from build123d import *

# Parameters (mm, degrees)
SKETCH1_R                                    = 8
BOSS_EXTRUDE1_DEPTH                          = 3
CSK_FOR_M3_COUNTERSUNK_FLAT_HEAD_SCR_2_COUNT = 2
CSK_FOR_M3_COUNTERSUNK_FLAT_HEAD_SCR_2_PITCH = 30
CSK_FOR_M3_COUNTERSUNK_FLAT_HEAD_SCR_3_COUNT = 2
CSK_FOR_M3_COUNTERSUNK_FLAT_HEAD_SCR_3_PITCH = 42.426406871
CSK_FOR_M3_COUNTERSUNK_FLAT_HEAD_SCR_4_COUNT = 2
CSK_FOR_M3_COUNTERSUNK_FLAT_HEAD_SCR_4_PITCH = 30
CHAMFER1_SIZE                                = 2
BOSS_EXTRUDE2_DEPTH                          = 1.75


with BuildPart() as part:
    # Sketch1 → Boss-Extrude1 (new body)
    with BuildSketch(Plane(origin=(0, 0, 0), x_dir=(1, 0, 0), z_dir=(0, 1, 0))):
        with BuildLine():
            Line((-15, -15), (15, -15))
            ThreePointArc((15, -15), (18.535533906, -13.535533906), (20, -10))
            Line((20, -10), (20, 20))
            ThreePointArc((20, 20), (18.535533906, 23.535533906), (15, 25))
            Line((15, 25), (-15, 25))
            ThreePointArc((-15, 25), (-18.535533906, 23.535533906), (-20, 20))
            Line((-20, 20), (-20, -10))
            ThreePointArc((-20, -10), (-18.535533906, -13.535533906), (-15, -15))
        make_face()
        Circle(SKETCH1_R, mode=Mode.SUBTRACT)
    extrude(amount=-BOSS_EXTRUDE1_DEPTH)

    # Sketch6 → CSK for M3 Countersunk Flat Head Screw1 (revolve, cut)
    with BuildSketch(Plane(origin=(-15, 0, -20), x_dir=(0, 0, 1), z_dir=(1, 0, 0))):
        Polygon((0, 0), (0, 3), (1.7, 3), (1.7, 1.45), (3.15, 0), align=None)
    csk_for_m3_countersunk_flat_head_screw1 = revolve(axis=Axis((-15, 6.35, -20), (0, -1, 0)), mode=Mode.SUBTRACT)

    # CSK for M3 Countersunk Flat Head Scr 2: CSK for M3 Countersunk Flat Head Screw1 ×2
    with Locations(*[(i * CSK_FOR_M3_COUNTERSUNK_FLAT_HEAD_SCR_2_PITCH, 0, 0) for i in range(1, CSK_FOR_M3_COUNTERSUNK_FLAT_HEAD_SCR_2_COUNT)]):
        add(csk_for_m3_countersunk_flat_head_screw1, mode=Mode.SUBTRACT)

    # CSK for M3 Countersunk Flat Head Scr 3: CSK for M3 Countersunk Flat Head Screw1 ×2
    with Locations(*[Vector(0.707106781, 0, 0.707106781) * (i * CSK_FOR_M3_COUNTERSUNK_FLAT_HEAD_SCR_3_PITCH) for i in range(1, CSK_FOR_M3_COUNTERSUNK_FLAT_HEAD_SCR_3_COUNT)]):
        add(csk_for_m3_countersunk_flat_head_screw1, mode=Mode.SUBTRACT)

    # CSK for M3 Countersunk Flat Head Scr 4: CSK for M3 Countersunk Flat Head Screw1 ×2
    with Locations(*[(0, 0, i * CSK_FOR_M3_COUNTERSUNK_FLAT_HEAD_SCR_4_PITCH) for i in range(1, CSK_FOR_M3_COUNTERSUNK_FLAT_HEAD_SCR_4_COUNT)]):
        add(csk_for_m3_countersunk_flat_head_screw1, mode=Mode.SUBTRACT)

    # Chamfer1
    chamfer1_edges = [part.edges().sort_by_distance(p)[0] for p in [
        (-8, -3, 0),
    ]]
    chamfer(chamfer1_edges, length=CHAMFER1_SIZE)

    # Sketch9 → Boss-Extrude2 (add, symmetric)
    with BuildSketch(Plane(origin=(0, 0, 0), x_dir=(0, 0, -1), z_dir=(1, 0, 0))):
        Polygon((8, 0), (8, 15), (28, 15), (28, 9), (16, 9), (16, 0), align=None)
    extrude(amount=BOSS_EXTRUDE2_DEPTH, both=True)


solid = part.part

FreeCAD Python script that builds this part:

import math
import FreeCAD as App
import Part
import Sketcher
Q = App.Units.Quantity


def edges_at(feature, points):
    """Names of the edges that pass closest to the given points."""
    edges = feature.Shape.Edges
    near = lambda p: min(range(len(edges)), key=lambda i: edges[i].distToShape(Part.Vertex(*p))[0])
    return sorted({f"Edge{near(p) + 1}" for p in points})


def add_polygon(sketch, points):
    """Adds a closed chain of lines whose ends are joined by coincident constraints."""
    first, n = sketch.GeometryCount, len(points)
    for a, b in zip(points, points[1:] + points[:1]):
        sketch.addGeometry(Part.LineSegment(App.Vector(*a, 0), App.Vector(*b, 0)), False)
    for i in range(n):
        sketch.addConstraint(Sketcher.Constraint("Coincident", first + i, 2, first + (i + 1) % n, 1))

doc = App.newDocument("Part")
body = doc.addObject("PartDesign::Body", "Body")

sketch1 = body.newObject("Sketcher::SketchObject", "Sketch")
sketch1.AttachmentSupport = (doc.getObject("XZ_Plane"), [""])
sketch1.MapMode = "FlatFace"
sketch1.addGeometry([
    Part.LineSegment(App.Vector(-15, 15, 0), App.Vector(15, 15, 0)),
    Part.ArcOfCircle(Part.Circle(App.Vector(15, 10, 0), App.Vector(0, 0, 1), 5), math.radians(0), math.radians(90)),
    Part.LineSegment(App.Vector(20, 10, 0), App.Vector(20, -20, 0)),
    Part.ArcOfCircle(Part.Circle(App.Vector(15, -20, 0), App.Vector(0, 0, 1), 5), math.radians(-90), math.radians(0)),
    Part.LineSegment(App.Vector(15, -25, 0), App.Vector(-15, -25, 0)),
    Part.ArcOfCircle(Part.Circle(App.Vector(-15, -20, 0), App.Vector(0, 0, 1), 5), math.radians(180), math.radians(270)),
    Part.LineSegment(App.Vector(-20, -20, 0), App.Vector(-20, 10, 0)),
    Part.ArcOfCircle(Part.Circle(App.Vector(-15, 10, 0), App.Vector(0, 0, 1), 5), math.radians(90), math.radians(180)),
    Part.Circle(App.Vector(0, 0, 0), App.Vector(0, 0, 1), 8),
], False)
sketch1.addConstraint([
    Sketcher.Constraint("Tangent", 0, 2, 1, 2),
    Sketcher.Constraint("Tangent", 1, 1, 2, 1),
    Sketcher.Constraint("Tangent", 2, 2, 3, 2),
    Sketcher.Constraint("Tangent", 3, 1, 4, 1),
    Sketcher.Constraint("Tangent", 4, 2, 5, 2),
    Sketcher.Constraint("Tangent", 5, 1, 6, 1),
    Sketcher.Constraint("Tangent", 6, 2, 7, 2),
    Sketcher.Constraint("Tangent", 7, 1, 0, 1),
    Sketcher.Constraint("Horizontal", 0),
    Sketcher.Constraint("Vertical", 2),
    Sketcher.Constraint("Horizontal", 4),
    Sketcher.Constraint("Vertical", 6),
    Sketcher.Constraint("Coincident", 8, 3, -1, 1),
    Sketcher.Constraint("Equal", 1, 3),
    Sketcher.Constraint("Equal", 3, 5),
    Sketcher.Constraint("Equal", 5, 7),
    Sketcher.Constraint("Equal", 4, 2),
    Sketcher.Constraint("Diameter", 8, 16.0),
    Sketcher.Constraint("Radius", 1, 5.0),
    Sketcher.Constraint("DistanceX", 0, 1, 0, 2, 30.0),
    Sketcher.Constraint("DistanceX", -1, 1, 1, 3, 15.0),
    Sketcher.Constraint("DistanceY", -1, 1, 1, 3, 10.0),
])
pad1 = body.newObject("PartDesign::Pad", "Pad")
pad1.Profile = sketch1
pad1.Length = 3

sketch2 = body.newObject("Sketcher::SketchObject", "Sketch001")
sketch2.AttachmentSupport = (doc.getObject("YZ_Plane"), [""])
sketch2.MapMode = "FlatFace"
sketch2.AttachmentOffset = App.Placement(App.Vector(0, 0, -15), App.Rotation())
add_polygon(sketch2, [(-3, -20), (0, -20), (0, -16.9), (-1.4, -18.3), (-3, -18.3)])
sketch2.addGeometry(Part.LineSegment(App.Vector(0, -20, 0), App.Vector(-3, -20, 0)), True)
sketch2.addConstraint([
    Sketcher.Constraint("Horizontal", 0),
    Sketcher.Constraint("Vertical", 1),
    Sketcher.Constraint("Horizontal", 3),
    Sketcher.Constraint("Vertical", 4),
    Sketcher.Constraint("Horizontal", 5),
    Sketcher.Constraint("Coincident", 5, 1, 0, 2),
    Sketcher.Constraint("PointOnObject", 0, 2, -2),
    Sketcher.Constraint("Vertical", 3, 2, 5, 2),
    Sketcher.Constraint("DistanceX", 0, 1, 0, 2, 3.0),
    Sketcher.Constraint("Angle", 2, Q("-135 deg")),
    Sketcher.Constraint("DistanceY", 4, 2, 4, 1, 1.7),
    Sketcher.Constraint("DistanceY", 0, 2, -1, 1, 20.0),
    Sketcher.Constraint("DistanceX", 3, 2, 3, 1, 1.55),
])
groove = body.newObject("PartDesign::Groove", "Groove")
groove.Profile = sketch2
groove.ReferenceAxis = (sketch2, ["Axis0"])
groove.Angle = 360
doc.recompute()

linearpattern = body.newObject("PartDesign::LinearPattern", "LinearPattern")
linearpattern.Originals = [groove]
linearpattern.Direction = (doc.getObject("X_Axis"), [""])
linearpattern.Mode = "offset"
linearpattern.Offset = 30
linearpattern.Occurrences = 2
body.Tip = linearpattern
doc.recompute()

datumline = body.newObject("PartDesign::Line", "DatumLine")
datumline.Placement = App.Placement(App.Vector(0, 0, 0), App.Rotation(App.Vector(0, 0, 1), App.Vector(0.707106781, 0, 0.707106781)))
linearpattern2 = body.newObject("PartDesign::LinearPattern", "LinearPattern001")
linearpattern2.Originals = [groove]
linearpattern2.Direction = (datumline, [""])
linearpattern2.Mode = "offset"
linearpattern2.Offset = 42.426407
linearpattern2.Occurrences = 2
body.Tip = linearpattern2
doc.recompute()

linearpattern3 = body.newObject("PartDesign::LinearPattern", "LinearPattern002")
linearpattern3.Originals = [groove]
linearpattern3.Direction = (doc.getObject("Z_Axis"), [""])
linearpattern3.Mode = "offset"
linearpattern3.Offset = 30
linearpattern3.Occurrences = 2
body.Tip = linearpattern3
doc.recompute()

chamfer = body.newObject("PartDesign::Chamfer", "Chamfer")
chamfer.Base = (linearpattern3, edges_at(linearpattern3, [(-8, -3, 0)]))
chamfer.Size = 2

sketch3 = body.newObject("Sketcher::SketchObject", "Sketch002")
sketch3.AttachmentSupport = (doc.getObject("YZ_Plane"), [""])
sketch3.MapMode = "FlatFace"
add_polygon(sketch3, [(15, -8), (0, -8), (0, -16), (9, -16), (9, -28), (15, -28)])
sketch3.addConstraint([
    Sketcher.Constraint("Horizontal", 0),
    Sketcher.Constraint("Vertical", 1),
    Sketcher.Constraint("Horizontal", 2),
    Sketcher.Constraint("Vertical", 3),
    Sketcher.Constraint("Horizontal", 4),
    Sketcher.Constraint("Vertical", 5),
    Sketcher.Constraint("PointOnObject", 0, 2, -2),
    Sketcher.Constraint("DistanceX", 0, 2, 0, 1, 15.0),
    Sketcher.Constraint("DistanceX", 2, 1, 2, 2, 9.0),
    Sketcher.Constraint("DistanceY", 1, 2, 1, 1, 8.0),
    Sketcher.Constraint("DistanceY", 3, 2, 3, 1, 12.0),
    Sketcher.Constraint("DistanceY", 0, 2, -1, 1, 8.0),
])
pad2 = body.newObject("PartDesign::Pad", "Pad001")
pad2.Profile = sketch3
pad2.Length = 3.5
pad2.Midplane = True

doc.recompute()
